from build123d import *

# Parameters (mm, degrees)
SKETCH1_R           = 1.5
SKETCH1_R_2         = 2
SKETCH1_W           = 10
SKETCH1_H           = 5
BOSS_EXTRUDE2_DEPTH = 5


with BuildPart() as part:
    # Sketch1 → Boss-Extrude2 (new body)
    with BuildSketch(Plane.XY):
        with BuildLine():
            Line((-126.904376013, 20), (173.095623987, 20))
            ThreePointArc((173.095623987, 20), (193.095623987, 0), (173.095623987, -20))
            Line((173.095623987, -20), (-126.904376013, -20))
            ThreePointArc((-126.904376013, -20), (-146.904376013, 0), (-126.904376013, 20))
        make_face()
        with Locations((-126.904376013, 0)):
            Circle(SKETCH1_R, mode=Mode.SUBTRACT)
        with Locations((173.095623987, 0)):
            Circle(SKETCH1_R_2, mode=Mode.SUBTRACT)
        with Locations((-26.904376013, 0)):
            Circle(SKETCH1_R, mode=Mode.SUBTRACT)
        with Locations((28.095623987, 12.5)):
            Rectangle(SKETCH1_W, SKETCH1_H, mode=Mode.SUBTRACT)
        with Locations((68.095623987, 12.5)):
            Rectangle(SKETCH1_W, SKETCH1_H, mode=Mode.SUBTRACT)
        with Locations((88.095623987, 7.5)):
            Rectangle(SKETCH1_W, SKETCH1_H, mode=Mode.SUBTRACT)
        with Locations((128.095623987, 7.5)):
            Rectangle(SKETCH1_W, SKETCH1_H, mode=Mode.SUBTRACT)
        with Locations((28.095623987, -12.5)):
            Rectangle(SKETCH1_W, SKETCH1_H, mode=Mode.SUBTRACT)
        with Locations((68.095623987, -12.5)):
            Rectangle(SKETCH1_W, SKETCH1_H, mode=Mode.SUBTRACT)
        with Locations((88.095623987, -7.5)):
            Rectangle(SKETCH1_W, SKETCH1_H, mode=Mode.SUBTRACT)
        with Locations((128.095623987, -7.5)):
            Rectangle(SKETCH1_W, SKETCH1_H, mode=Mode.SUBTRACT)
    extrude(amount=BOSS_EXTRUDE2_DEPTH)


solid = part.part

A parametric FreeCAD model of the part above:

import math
import FreeCAD as App
import Part
import Sketcher
from FreeCAD import Vector


def add_polygon(sketch, points):
    """Adds a closed chain of lines whose ends are joined by coincident constraints."""
    first, n = sketch.GeometryCount, len(points)
    for a, b in zip(points, points[1:] + points[:1]):
        sketch.addGeometry(Part.LineSegment(App.Vector(*a, 0), App.Vector(*b, 0)), False)
    for i in range(n):
        sketch.addConstraint(Sketcher.Constraint("Coincident", first + i, 2, first + (i + 1) % n, 1))

doc = App.newDocument("Part")
body = doc.addObject("PartDesign::Body", "Body")

# Sketch on XY plane
sketch1 = body.newObject("Sketcher::SketchObject", "Sketch")
sketch1.AttachmentSupport = (doc.getObject("XY_Plane"), [""])
sketch1.MapMode = "FlatFace"
sketch1.addGeometry(Part.LineSegment(Vector(173.1, 20, 0), Vector(-126.9, 20, 0)), False)  # 0
sketch1.addGeometry(Part.ArcOfCircle(Part.Circle(Vector(-126.9, 0, 0), Vector(0, 0, 1), 20), math.radians(90), math.radians(270)), False)  # 1
sketch1.addGeometry(Part.LineSegment(Vector(-126.9, -20, 0), Vector(173.1, -20, 0)), False)  # 2
sketch1.addGeometry(Part.ArcOfCircle(Part.Circle(Vector(173.1, 0, 0), Vector(0, 0, 1), 20), math.radians(-90), math.radians(90)), False)  # 3
add_polygon(sketch1, [(63.1, -15), (63.1, -10), (73.1, -10), (73.1, -15)])  # lines 4-7
add_polygon(sketch1, [(23.1, -15), (23.1, -10), (33.1, -10), (33.1, -15)])  # lines 8-11
add_polygon(sketch1, [(123.1, -10), (123.1, -5), (133.1, -5), (133.1, -10)])  # lines 12-15
add_polygon(sketch1, [(83.1, -10), (83.1, -5), (93.1, -5), (93.1, -10)])  # lines 16-19
sketch1.addGeometry(Part.Circle(Vector(173.1, 0, 0), Vector(0, 0, 1), 2), False)  # 20
add_polygon(sketch1, [(123.1, 5), (123.1, 10), (133.1, 10), (133.1, 5)])  # lines 21-24
add_polygon(sketch1, [(83.1, 5), (83.1, 10), (93.1, 10), (93.1, 5)])  # lines 25-28
add_polygon(sketch1, [(63.1, 10), (63.1, 15), (73.1, 15), (73.1, 10)])  # lines 29-32
add_polygon(sketch1, [(23.1, 10), (23.1, 15), (33.1, 15), (33.1, 10)])  # lines 33-36
sketch1.addGeometry(Part.Circle(Vector(-26.9, 0, 0), Vector(0, 0, 1), 1.5), False)  # 37
sketch1.addGeometry(Part.Circle(Vector(-126.9, 0, 0), Vector(0, 0, 1), 1.5), False)  # 38
sketch1.addConstraint(Sketcher.Constraint("Tangent", 0, 2, 1, 1))
sketch1.addConstraint(Sketcher.Constraint("Tangent", 1, 2, 2, 1))
sketch1.addConstraint(Sketcher.Constraint("Tangent", 2, 2, 3, 1))
sketch1.addConstraint(Sketcher.Constraint("Tangent", 3, 2, 0, 1))
sketch1.addConstraint(Sketcher.Constraint("Horizontal", 0))
sketch1.addConstraint(Sketcher.Constraint("Horizontal", 2))
sketch1.addConstraint(Sketcher.Constraint("Vertical", 4))
sketch1.addConstraint(Sketcher.Constraint("Horizontal", 5))
sketch1.addConstraint(Sketcher.Constraint("Vertical", 6))
sketch1.addConstraint(Sketcher.Constraint("Horizontal", 7))
sketch1.addConstraint(Sketcher.Constraint("Vertical", 8))
sketch1.addConstraint(Sketcher.Constraint("Horizontal", 9))
sketch1.addConstraint(Sketcher.Constraint("Vertical", 10))
sketch1.addConstraint(Sketcher.Constraint("Horizontal", 11))
sketch1.addConstraint(Sketcher.Constraint("Vertical", 12))
sketch1.addConstraint(Sketcher.Constraint("Horizontal", 13))
sketch1.addConstraint(Sketcher.Constraint("Vertical", 14))
sketch1.addConstraint(Sketcher.Constraint("Horizontal", 15))
sketch1.addConstraint(Sketcher.Constraint("Vertical", 16))
sketch1.addConstraint(Sketcher.Constraint("Horizontal", 17))
sketch1.addConstraint(Sketcher.Constraint("Vertical", 18))
sketch1.addConstraint(Sketcher.Constraint("Horizontal", 19))
sketch1.addConstraint(Sketcher.Constraint("Vertical", 21))
sketch1.addConstraint(Sketcher.Constraint("Horizontal", 22))
sketch1.addConstraint(Sketcher.Constraint("Vertical", 23))
sketch1.addConstraint(Sketcher.Constraint("Horizontal", 24))
sketch1.addConstraint(Sketcher.Constraint("Vertical", 25))
sketch1.addConstraint(Sketcher.Constraint("Horizontal", 26))
sketch1.addConstraint(Sketcher.Constraint("Vertical", 27))
sketch1.addConstraint(Sketcher.Constraint("Horizontal", 28))
sketch1.addConstraint(Sketcher.Constraint("Vertical", 29))
sketch1.addConstraint(Sketcher.Constraint("Horizontal", 30))
sketch1.addConstraint(Sketcher.Constraint("Vertical", 31))
sketch1.addConstraint(Sketcher.Constraint("Horizontal", 32))
sketch1.addConstraint(Sketcher.Constraint("Vertical", 33))
sketch1.addConstraint(Sketcher.Constraint("Horizontal", 34))
sketch1.addConstraint(Sketcher.Constraint("Vertical", 35))
sketch1.addConstraint(Sketcher.Constraint("Horizontal", 36))
sketch1.addConstraint(Sketcher.Constraint("Coincident", 20, 3, 3, 3))
sketch1.addConstraint(Sketcher.Constraint("Coincident", 38, 3, 1, 3))
sketch1.addConstraint(Sketcher.Constraint("Equal", 37, 38))
sketch1.addConstraint(Sketcher.Constraint("Symmetric", 15, 2, 21, 2, -1))
sketch1.addConstraint(Sketcher.Constraint("Symmetric", 13, 2, 23, 2, -1))
sketch1.addConstraint(Sketcher.Constraint("Symmetric", 19, 2, 25, 2, -1))
sketch1.addConstraint(Sketcher.Constraint("Symmetric", 17, 2, 27, 2, -1))
sketch1.addConstraint(Sketcher.Constraint("Symmetric", 7, 2, 29, 2, -1))
sketch1.addConstraint(Sketcher.Constraint("Symmetric", 5, 2, 31, 2, -1))
sketch1.addConstraint(Sketcher.Constraint("Symmetric", 11, 2, 33, 2, -1))
sketch1.addConstraint(Sketcher.Constraint("Symmetric", 9, 2, 35, 2, -1))
sketch1.addConstraint(Sketcher.Constraint("PointOnObject", 1, 3, -1))
sketch1.addConstraint(Sketcher.Constraint("PointOnObject", 37, 3, -1))
sketch1.addConstraint(Sketcher.Constraint("Horizontal", 5, 2, 8, 2))
sketch1.addConstraint(Sketcher.Constraint("Horizontal", 7, 2, 10, 2))
sketch1.addConstraint(Sketcher.Constraint("Horizontal", 9, 2, 14, 2))
sketch1.addConstraint(Sketcher.Constraint("Horizontal", 13, 2, 16, 2))
sketch1.addConstraint(Sketcher.Constraint("Horizontal", 15, 2, 18, 2))
sketch1.addConstraint(Sketcher.Constraint("Equal", 7, 9))
sketch1.addConstraint(Sketcher.Constraint("Equal", 11, 13))
sketch1.addConstraint(Sketcher.Constraint("Equal", 15, 17))
sketch1.addConstraint(Sketcher.Constraint("Equal", 10, 12))
sketch1.addConstraint(Sketcher.Constraint("Diameter", 20, 4.0))
sketch1.addConstraint(Sketcher.Constraint("Diameter", 37, 3.0))
sketch1.addConstraint(Sketcher.Constraint("Radius", 1, 20.0))
sketch1.addConstraint(Sketcher.Constraint("DistanceX", 0, 2, 0, 1, 300.0))
sketch1.addConstraint(Sketcher.Constraint("DistanceX", 5, 1, 5, 2, 10.0))
sketch1.addConstraint(Sketcher.Constraint("DistanceY", 4, 1, 4, 2, 5.0))
sketch1.addConstraint(Sketcher.Constraint("DistanceY", 4, 2, -1, 1, 10.0))
sketch1.addConstraint(Sketcher.Constraint("DistanceX", 1, 3, 37, 3, 100.0))
sketch1.addConstraint(Sketcher.Constraint("DistanceX", 37, 3, 4, 2, 90.0))
sketch1.addConstraint(Sketcher.Constraint("DistanceX", 8, 2, 4, 2, 40.0))
sketch1.addConstraint(Sketcher.Constraint("DistanceX", 5, 2, 12, 2, 50.0))
sketch1.addConstraint(Sketcher.Constraint("DistanceX", 5, 2, 16, 2, 10.0))
sketch1.addConstraint(Sketcher.Constraint("DistanceX", 1, 3, -1, 1, 126.904376))
pad1 = body.newObject("PartDesign::Pad", "Pad")
pad1.Profile = sketch1
pad1.Length = 5

doc.recompute()
